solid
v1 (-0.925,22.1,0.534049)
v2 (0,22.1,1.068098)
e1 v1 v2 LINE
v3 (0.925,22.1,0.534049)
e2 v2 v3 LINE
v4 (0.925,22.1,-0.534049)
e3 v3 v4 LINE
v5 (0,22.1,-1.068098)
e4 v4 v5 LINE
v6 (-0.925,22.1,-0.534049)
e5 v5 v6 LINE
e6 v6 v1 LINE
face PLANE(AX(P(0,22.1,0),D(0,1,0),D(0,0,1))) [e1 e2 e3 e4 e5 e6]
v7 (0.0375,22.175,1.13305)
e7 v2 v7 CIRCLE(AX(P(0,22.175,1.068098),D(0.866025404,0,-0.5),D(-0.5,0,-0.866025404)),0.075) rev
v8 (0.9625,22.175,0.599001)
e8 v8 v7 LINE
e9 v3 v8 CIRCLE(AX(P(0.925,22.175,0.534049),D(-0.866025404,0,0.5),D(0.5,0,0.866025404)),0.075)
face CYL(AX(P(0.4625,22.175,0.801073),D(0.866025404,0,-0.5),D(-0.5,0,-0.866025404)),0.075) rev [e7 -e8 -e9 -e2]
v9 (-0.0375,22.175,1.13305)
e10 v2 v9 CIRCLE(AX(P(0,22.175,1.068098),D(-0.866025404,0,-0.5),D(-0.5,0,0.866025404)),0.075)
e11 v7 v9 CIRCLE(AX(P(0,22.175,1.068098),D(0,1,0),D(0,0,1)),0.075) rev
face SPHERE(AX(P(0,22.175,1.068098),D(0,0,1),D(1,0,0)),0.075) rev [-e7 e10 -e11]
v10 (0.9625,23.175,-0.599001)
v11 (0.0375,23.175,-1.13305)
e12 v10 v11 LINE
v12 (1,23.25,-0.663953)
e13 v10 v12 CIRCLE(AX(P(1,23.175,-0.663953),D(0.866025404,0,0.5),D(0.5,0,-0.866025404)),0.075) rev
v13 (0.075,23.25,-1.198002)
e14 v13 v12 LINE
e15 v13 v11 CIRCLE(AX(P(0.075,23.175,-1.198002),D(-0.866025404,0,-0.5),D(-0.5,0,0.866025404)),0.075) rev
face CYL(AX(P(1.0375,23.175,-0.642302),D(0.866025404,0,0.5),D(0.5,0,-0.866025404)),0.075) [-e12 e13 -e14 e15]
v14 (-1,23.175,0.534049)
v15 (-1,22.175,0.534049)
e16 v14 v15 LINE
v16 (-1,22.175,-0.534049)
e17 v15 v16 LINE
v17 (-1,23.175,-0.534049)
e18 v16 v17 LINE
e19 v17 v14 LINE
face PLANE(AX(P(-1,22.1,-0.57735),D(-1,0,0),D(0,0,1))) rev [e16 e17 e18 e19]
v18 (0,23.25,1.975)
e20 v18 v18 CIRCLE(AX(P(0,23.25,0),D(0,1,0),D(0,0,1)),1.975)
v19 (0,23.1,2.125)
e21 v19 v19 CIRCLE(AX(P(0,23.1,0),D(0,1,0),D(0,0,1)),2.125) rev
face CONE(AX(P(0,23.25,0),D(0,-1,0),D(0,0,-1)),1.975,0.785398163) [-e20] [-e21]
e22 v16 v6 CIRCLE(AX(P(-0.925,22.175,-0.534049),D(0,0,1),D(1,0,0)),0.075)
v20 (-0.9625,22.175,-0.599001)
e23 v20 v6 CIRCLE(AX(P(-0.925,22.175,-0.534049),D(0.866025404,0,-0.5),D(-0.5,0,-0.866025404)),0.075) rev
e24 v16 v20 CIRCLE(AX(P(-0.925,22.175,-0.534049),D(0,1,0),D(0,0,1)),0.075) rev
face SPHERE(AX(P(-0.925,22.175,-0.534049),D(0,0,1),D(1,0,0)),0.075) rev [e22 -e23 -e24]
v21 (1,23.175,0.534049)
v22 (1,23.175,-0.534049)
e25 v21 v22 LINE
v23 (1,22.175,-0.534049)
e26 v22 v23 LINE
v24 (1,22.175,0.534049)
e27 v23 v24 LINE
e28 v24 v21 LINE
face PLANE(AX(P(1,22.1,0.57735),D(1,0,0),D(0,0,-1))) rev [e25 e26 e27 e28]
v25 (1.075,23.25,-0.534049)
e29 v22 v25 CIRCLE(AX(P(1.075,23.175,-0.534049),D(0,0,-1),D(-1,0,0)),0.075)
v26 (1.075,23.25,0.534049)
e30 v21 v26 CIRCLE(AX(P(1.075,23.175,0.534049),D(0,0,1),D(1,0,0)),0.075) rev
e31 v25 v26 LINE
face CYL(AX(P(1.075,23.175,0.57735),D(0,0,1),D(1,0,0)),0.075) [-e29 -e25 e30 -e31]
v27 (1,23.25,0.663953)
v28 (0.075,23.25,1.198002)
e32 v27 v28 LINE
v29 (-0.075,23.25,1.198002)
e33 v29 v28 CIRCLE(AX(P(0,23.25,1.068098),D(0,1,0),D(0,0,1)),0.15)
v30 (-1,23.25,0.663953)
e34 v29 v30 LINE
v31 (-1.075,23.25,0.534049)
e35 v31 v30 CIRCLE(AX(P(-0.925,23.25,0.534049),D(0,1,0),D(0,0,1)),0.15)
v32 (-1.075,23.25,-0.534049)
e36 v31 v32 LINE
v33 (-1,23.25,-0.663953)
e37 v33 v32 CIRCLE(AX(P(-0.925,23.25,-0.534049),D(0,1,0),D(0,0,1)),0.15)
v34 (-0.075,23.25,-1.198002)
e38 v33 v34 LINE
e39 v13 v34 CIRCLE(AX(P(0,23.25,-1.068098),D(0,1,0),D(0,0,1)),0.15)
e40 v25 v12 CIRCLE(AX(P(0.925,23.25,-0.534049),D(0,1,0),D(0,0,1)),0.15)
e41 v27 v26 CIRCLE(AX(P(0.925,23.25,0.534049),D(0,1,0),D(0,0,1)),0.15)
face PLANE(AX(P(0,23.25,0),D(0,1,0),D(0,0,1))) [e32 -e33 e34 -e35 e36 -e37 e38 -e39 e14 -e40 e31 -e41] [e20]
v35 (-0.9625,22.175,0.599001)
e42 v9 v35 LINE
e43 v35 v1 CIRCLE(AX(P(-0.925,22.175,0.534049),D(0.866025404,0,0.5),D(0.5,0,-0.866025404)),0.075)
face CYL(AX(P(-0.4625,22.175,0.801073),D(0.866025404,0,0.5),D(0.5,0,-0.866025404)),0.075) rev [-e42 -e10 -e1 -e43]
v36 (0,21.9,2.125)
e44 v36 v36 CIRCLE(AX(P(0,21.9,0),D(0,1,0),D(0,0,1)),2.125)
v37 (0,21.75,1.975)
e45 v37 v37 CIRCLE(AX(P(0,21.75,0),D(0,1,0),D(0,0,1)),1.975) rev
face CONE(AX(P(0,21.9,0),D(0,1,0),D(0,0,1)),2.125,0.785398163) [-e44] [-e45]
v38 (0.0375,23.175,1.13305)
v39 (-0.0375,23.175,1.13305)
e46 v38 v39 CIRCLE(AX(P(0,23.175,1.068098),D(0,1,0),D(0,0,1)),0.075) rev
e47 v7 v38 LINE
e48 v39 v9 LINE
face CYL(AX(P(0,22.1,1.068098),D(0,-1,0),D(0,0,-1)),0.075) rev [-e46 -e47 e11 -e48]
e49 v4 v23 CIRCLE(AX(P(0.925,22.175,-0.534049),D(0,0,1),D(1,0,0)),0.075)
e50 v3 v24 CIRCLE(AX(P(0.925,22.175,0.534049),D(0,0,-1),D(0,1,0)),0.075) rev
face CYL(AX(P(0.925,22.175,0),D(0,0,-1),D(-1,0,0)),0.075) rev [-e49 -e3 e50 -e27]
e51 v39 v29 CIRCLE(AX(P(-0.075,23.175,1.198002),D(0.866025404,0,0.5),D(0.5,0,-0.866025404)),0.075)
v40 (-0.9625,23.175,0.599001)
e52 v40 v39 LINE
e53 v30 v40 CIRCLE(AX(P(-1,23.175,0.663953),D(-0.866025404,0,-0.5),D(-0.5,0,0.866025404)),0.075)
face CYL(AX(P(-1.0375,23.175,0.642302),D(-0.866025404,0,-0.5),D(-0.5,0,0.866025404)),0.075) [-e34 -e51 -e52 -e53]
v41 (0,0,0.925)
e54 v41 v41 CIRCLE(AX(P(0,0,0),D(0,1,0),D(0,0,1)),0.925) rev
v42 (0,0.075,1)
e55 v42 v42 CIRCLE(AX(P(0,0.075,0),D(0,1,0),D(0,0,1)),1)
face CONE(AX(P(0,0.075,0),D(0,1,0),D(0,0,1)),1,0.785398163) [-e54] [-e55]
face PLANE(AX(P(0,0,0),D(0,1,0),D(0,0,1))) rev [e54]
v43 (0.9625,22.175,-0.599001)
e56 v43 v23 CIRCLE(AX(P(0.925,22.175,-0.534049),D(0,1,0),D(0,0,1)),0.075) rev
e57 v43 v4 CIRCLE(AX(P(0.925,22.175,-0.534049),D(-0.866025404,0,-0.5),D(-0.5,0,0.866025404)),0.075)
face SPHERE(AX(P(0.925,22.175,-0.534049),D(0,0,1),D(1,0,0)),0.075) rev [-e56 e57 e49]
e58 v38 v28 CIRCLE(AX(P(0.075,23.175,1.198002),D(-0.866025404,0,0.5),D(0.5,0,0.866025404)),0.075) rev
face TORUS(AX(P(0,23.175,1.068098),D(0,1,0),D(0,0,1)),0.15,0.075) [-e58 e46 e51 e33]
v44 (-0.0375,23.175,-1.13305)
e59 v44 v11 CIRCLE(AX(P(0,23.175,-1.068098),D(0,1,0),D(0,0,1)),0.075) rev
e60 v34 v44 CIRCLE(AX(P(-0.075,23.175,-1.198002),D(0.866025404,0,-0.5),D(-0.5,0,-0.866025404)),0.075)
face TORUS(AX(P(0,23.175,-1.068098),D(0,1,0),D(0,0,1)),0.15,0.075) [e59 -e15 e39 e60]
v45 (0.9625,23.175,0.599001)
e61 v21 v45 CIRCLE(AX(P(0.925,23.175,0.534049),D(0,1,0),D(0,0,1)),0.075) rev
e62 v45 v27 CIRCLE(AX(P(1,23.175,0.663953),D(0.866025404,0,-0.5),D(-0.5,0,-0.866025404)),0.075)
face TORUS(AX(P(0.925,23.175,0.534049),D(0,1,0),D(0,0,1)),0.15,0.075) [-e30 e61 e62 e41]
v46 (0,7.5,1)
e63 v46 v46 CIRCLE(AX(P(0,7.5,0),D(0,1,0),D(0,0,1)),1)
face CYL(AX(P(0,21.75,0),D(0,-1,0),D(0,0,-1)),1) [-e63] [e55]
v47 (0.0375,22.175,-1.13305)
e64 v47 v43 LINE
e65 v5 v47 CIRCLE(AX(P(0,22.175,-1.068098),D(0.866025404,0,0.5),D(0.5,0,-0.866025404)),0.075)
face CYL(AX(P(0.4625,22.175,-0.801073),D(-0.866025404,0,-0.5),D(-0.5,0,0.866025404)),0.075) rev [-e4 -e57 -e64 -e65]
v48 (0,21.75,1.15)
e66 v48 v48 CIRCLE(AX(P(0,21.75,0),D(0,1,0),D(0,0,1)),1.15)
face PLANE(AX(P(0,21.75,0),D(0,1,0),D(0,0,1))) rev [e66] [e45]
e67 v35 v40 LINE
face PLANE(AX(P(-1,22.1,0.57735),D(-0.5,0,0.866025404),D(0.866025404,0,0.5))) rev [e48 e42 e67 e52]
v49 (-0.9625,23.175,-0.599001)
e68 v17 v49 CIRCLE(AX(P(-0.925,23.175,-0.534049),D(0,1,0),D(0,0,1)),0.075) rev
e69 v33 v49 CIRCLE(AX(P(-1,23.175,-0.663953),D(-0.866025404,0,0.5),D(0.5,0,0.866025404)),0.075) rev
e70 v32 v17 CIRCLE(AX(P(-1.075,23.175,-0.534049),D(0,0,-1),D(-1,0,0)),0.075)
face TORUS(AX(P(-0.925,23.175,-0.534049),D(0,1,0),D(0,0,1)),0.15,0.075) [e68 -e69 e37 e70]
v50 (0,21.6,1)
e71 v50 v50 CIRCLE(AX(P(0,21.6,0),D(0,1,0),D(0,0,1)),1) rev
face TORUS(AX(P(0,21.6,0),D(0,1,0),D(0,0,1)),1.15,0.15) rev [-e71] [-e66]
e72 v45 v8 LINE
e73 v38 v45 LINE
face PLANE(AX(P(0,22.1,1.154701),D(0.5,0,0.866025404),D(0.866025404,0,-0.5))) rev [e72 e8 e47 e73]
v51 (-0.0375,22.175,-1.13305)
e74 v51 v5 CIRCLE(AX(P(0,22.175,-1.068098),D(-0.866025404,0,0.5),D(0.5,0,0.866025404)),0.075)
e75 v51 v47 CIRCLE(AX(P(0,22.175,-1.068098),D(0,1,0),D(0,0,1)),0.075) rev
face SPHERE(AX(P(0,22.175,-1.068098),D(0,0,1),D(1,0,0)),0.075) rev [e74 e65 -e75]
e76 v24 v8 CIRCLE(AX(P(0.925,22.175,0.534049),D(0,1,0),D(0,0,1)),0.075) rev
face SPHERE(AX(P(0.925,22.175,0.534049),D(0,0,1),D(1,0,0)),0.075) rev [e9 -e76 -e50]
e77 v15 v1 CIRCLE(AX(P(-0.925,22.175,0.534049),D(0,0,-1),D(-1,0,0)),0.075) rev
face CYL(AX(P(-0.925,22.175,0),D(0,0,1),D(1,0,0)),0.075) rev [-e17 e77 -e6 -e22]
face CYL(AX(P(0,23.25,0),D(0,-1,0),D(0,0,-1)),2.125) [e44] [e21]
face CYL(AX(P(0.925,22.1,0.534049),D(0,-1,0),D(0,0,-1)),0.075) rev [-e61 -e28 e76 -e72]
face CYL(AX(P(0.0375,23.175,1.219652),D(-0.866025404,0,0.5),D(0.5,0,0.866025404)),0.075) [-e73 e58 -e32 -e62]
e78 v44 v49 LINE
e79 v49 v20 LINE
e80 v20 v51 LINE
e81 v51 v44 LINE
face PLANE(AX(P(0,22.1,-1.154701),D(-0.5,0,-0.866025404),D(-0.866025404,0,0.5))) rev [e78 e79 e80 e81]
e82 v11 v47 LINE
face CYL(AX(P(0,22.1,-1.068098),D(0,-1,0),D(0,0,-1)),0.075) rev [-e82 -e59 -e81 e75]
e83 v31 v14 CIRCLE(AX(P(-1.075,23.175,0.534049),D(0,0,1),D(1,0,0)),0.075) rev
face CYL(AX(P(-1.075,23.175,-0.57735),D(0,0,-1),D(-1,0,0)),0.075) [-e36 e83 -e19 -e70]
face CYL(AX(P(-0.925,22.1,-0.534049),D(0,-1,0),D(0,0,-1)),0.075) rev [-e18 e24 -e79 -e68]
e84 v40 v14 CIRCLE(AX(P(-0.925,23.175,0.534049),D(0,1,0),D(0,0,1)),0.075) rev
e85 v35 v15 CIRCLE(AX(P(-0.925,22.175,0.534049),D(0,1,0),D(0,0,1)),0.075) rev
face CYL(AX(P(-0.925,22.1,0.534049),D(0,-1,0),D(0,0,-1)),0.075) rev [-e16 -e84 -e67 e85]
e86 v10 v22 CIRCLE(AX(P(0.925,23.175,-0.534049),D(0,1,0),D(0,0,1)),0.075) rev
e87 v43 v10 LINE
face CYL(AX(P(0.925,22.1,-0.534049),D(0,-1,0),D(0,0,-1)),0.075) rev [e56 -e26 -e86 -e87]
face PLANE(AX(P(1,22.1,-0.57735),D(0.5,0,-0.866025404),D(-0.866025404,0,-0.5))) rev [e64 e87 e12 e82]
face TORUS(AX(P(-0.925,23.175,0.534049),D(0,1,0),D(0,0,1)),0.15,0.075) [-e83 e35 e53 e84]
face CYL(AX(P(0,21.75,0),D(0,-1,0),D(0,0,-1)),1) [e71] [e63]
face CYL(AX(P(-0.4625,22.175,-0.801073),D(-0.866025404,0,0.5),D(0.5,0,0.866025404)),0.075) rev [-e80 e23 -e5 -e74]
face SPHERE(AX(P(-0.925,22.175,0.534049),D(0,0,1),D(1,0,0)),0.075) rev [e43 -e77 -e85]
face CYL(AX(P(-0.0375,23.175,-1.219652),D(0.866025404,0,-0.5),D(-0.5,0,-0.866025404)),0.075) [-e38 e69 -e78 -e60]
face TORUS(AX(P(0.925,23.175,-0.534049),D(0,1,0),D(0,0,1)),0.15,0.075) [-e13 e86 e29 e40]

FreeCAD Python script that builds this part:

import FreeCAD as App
import Part
import Sketcher

V = App.Vector
Q = App.Units.Quantity


def edges_at(feature, points):
    """Names of the edges that pass closest to the given points."""
    edges = feature.Shape.Edges
    near = lambda p: min(range(len(edges)), key=lambda i: edges[i].distToShape(Part.Vertex(*p))[0])
    return sorted({f"Edge{near(p) + 1}" for p in points})

doc = App.newDocument("Part")
body = doc.addObject("PartDesign::Body", "Body")

sketch1 = body.newObject("Sketcher::SketchObject", "Sketch")
sketch1.AttachmentSupport = (doc.getObject("XZ_Plane"), [""])
sketch1.MapMode = "FlatFace"
sketch1.addGeometry(Part.Circle(V(0, 0, 0), V(0, 0, 1), 1), False)
sketch1.addConstraint([
    Sketcher.Constraint("Coincident", 0, 3, -1, 1),
    Sketcher.Constraint("Diameter", 0, Q("2 mm")),
])
pad1 = body.newObject("PartDesign::Pad", "Pad")
pad1.Profile = sketch1
pad1.Length = 21.75
pad1.Reversed = True

sketch2 = body.newObject("Sketcher::SketchObject", "Sketch001")
sketch2.AttachmentSupport = (doc.getObject("XZ_Plane"), [""])
sketch2.MapMode = "FlatFace"
sketch2.AttachmentOffset = App.Placement(V(0, 0, -21.75), App.Rotation())
sketch2.addGeometry(Part.Circle(V(0, 0, 0), V(0, 0, 1), 2.125), False)
sketch2.addConstraint([
    Sketcher.Constraint("Coincident", 0, 3, -1, 1),
    Sketcher.Constraint("Diameter", 0, Q("4.25 mm")),
])
pad2 = body.newObject("PartDesign::Pad", "Pad001")
pad2.Profile = sketch2
pad2.Length = 1.5
pad2.Reversed = True
doc.recompute()

fillet = body.newObject("PartDesign::Fillet", "Fillet")
fillet.Base = (pad2, edges_at(pad2, [(0, 21.75, -1)]))
fillet.Radius = 0.15
doc.recompute()

chamfer = body.newObject("PartDesign::Chamfer", "Chamfer")
chamfer.Base = (fillet, edges_at(fillet, [(0, 21.75, -2.125), (0, 23.25, -2.125)]))
chamfer.Size = 0.15

sketch3 = body.newObject("Sketcher::SketchObject", "Sketch002")
sketch3.AttachmentSupport = (doc.getObject("XZ_Plane"), [""])
sketch3.MapMode = "FlatFace"
sketch3.AttachmentOffset = App.Placement(V(0, 0, -23.25), App.Rotation())
sketch3.addGeometry([
    Part.LineSegment(V(0, -1.154701, 0), V(-1, -0.57735, 0)),
    Part.LineSegment(V(-1, -0.57735, 0), V(-1, 0.57735, 0)),
    Part.LineSegment(V(-1, 0.57735, 0), V(0, 1.154701, 0)),
    Part.LineSegment(V(0, 1.154701, 0), V(1, 0.57735, 0)),
    Part.LineSegment(V(1, 0.57735, 0), V(1, -0.57735, 0)),
    Part.LineSegment(V(1, -0.57735, 0), V(0, -1.154701, 0)),
], False)
sketch3.addConstraint([
    Sketcher.Constraint("Coincident", 0, 2, 1, 1),
    Sketcher.Constraint("Coincident", 1, 2, 2, 1),
    Sketcher.Constraint("Coincident", 2, 2, 3, 1),
    Sketcher.Constraint("Coincident", 3, 2, 4, 1),
    Sketcher.Constraint("Coincident", 4, 2, 5, 1),
    Sketcher.Constraint("Coincident", 5, 2, 0, 1),
    Sketcher.Constraint("Vertical", 1),
    Sketcher.Constraint("Vertical", 4),
    Sketcher.Constraint("Symmetric", 0, 2, 3, 2, -1, 1),
    Sketcher.Constraint("Symmetric", 2, 2, 5, 2, -1, 1),
    Sketcher.Constraint("PointOnObject", 2, 2, -2),
    Sketcher.Constraint("Parallel", 2, 5),
    Sketcher.Constraint("Horizontal", 1, 2, 3, 2),
    Sketcher.Constraint("Angle", 0, Q("150 deg")),
    Sketcher.Constraint("DistanceX", 0, 2, -1, 1, Q("1 mm")),
    Sketcher.Constraint("DistanceY", 1, 1, 1, 2, Q("1.154701 mm")),
])
pocket1 = body.newObject("PartDesign::Pocket", "Pocket")
pocket1.Profile = sketch3
pocket1.Length = 1.15
pocket1.Reversed = True
doc.recompute()

chamfer2 = body.newObject("PartDesign::Chamfer", "Chamfer001")
chamfer2.Base = (pocket1, edges_at(pocket1, [(0, 0, -1)]))
chamfer2.Size = 0.075
doc.recompute()

fillet2 = body.newObject("PartDesign::Fillet", "Fillet001")
fillet2.Base = (chamfer2, edges_at(chamfer2, [
    (0.5, 22.1, -0.866),
    (0, 22.675, -1.155),
    (1, 22.1, 0),
    (1, 22.675, -0.577),
    (0.5, 22.1, 0.866),
    (1, 22.675, 0.577),
    (-0.5, 22.1, 0.866),
    (0, 22.675, 1.155),
    (-1, 22.1, 0),
    (-1, 22.675, 0.577),
    (-0.5, 22.1, -0.866),
    (-1, 22.675, -0.577),
    (0.5, 23.25, -0.866),
    (-0.5, 23.25, -0.866),
    (-1, 23.25, 0),
    (-0.5, 23.25, 0.866),
    (0.5, 23.25, 0.866),
    (1, 23.25, 0),
]))
fillet2.Radius = 0.075

doc.recompute()
